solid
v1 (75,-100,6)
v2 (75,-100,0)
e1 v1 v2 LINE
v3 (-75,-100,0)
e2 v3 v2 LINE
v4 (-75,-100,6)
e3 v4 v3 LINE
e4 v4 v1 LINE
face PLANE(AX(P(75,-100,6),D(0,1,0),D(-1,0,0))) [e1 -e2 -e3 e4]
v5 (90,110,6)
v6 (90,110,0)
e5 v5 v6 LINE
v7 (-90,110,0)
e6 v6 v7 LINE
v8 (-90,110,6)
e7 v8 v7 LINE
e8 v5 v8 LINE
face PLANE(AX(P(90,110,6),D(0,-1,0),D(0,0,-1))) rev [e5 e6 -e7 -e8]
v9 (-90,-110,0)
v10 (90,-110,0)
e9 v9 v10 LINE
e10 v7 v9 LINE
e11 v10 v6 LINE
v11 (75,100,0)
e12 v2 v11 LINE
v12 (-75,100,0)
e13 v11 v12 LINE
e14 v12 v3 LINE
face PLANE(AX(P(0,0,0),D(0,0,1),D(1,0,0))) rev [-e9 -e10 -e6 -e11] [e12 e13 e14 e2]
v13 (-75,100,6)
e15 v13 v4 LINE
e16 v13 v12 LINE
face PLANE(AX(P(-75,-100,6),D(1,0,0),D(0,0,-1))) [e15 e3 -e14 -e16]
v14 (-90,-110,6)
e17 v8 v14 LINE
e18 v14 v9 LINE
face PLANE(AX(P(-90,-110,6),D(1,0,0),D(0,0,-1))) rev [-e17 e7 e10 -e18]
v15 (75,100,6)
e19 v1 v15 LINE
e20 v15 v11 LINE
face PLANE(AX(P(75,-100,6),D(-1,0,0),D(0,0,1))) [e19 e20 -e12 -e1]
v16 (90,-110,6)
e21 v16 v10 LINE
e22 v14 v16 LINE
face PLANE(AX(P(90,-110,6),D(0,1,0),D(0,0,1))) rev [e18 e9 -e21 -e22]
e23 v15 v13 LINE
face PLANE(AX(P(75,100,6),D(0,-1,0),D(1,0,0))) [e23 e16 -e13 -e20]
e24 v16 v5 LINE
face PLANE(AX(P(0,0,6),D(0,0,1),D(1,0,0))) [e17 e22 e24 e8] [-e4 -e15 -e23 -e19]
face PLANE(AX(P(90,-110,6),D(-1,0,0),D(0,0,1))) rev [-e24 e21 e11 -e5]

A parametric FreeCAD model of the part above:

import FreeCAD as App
import Part
import Sketcher

V = App.Vector
Q = App.Units.Quantity


def add_polygon(sketch, points):
    """Adds a closed chain of lines whose ends are joined by coincident constraints."""
    first, n = sketch.GeometryCount, len(points)
    for a, b in zip(points, points[1:] + points[:1]):
        sketch.addGeometry(Part.LineSegment(App.Vector(*a, 0), App.Vector(*b, 0)), False)
    for i in range(n):
        sketch.addConstraint(Sketcher.Constraint("Coincident", first + i, 2, first + (i + 1) % n, 1))

doc = App.newDocument("Part")
body = doc.addObject("PartDesign::Body", "Body")

# Sketch on XY plane
sketch1 = body.newObject("Sketcher::SketchObject", "Sketch")
sketch1.AttachmentSupport = (doc.getObject("XY_Plane"), [""])
sketch1.MapMode = "FlatFace"
add_polygon(sketch1, [(-90, 110), (-90, -110), (90, -110), (90, 110)])  # lines 0-3
add_polygon(sketch1, [(75, -100), (-75, -100), (-75, 100), (75, 100)])  # lines 4-7
sketch1.addConstraint([
    Sketcher.Constraint("Vertical", 0),
    Sketcher.Constraint("Horizontal", 1),
    Sketcher.Constraint("Vertical", 2),
    Sketcher.Constraint("Horizontal", 3),
    Sketcher.Constraint("Horizontal", 4),
    Sketcher.Constraint("Vertical", 5),
    Sketcher.Constraint("Horizontal", 6),
    Sketcher.Constraint("Vertical", 7),
    Sketcher.Constraint("Symmetric", 0, 2, 2, 2, -1, 1),
    Sketcher.Constraint("Symmetric", 4, 2, 6, 2, -1, 1),
    Sketcher.Constraint("DistanceX", 1, 1, 1, 2, Q("180 mm")),
    Sketcher.Constraint("DistanceX", 4, 2, 4, 1, Q("150 mm")),
    Sketcher.Constraint("DistanceY", 0, 2, 0, 1, Q("220 mm")),
    Sketcher.Constraint("DistanceY", 5, 1, 5, 2, Q("200 mm")),
])
pad1 = body.newObject("PartDesign::Pad", "Pad")
pad1.Profile = sketch1
pad1.Length = 6

doc.recompute()
